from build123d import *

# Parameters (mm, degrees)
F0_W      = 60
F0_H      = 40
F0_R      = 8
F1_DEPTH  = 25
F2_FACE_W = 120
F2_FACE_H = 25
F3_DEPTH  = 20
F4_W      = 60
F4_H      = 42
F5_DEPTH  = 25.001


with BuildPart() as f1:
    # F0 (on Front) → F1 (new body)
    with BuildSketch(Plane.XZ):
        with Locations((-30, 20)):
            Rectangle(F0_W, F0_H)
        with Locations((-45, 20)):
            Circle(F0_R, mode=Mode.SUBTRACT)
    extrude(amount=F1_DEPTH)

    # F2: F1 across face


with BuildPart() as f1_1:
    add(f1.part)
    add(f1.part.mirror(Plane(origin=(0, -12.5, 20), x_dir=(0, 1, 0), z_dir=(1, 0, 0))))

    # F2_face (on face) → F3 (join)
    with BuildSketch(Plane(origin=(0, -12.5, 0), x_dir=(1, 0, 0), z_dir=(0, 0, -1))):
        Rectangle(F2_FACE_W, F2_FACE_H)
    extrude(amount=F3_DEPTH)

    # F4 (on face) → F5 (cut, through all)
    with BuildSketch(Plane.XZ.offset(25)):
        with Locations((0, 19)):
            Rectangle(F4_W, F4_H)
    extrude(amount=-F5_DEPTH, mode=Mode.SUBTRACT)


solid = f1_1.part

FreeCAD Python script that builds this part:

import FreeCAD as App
import Part
import Sketcher
from FreeCAD import Vector


def add_polygon(sketch, points):
    """Adds a closed chain of lines whose ends are joined by coincident constraints."""
    first, n = sketch.GeometryCount, len(points)
    for a, b in zip(points, points[1:] + points[:1]):
        sketch.addGeometry(Part.LineSegment(App.Vector(*a, 0), App.Vector(*b, 0)), False)
    for i in range(n):
        sketch.addConstraint(Sketcher.Constraint("Coincident", first + i, 2, first + (i + 1) % n, 1))

doc = App.newDocument("Part")
body = doc.addObject("PartDesign::Body", "Body")

# Sketch on XZ plane
sketch1 = body.newObject("Sketcher::SketchObject", "Sketch")
sketch1.AttachmentSupport = (doc.getObject("XZ_Plane"), [""])
sketch1.MapMode = "FlatFace"
add_polygon(sketch1, [(-60, 40), (-60, 0), (0, 0), (0, 40)])  # lines 0-3
sketch1.addGeometry(Part.Circle(Vector(-45, 20, 0), Vector(0, 0, 1), 8), False)  # 4
sketch1.addConstraint(Sketcher.Constraint("Vertical", 0))
sketch1.addConstraint(Sketcher.Constraint("Horizontal", 1))
sketch1.addConstraint(Sketcher.Constraint("Vertical", 2))
sketch1.addConstraint(Sketcher.Constraint("Horizontal", 3))
sketch1.addConstraint(Sketcher.Constraint("Coincident", 1, 2, -1, 1))
sketch1.addConstraint(Sketcher.Constraint("Diameter", 4, 16.0))
sketch1.addConstraint(Sketcher.Constraint("DistanceX", 1, 1, 1, 2, 60.0))
sketch1.addConstraint(Sketcher.Constraint("DistanceY", 0, 2, 0, 1, 40.0))
sketch1.addConstraint(Sketcher.Constraint("DistanceX", 4, 3, -1, 1, 45.0))
sketch1.addConstraint(Sketcher.Constraint("DistanceY", -1, 1, 4, 3, 20.0))
pad1 = body.newObject("PartDesign::Pad", "Pad")
pad1.Profile = sketch1
pad1.Length = 25
body2 = doc.addObject("PartDesign::Body", "Body001")
doc.recompute()

body2.BaseFeature = body
doc.recompute()

mirroring = doc.addObject("Part::Mirroring", "Mirroring")
mirroring.Source = body
mirroring.Base = Vector(0, -12.5, 20)
mirroring.Normal = Vector(1, 0, 0)
body3 = doc.addObject("PartDesign::Body", "Body002")
body3.BaseFeature = mirroring
boolean = body2.newObject("PartDesign::Boolean", "Boolean")
boolean.Type = "Fuse"
boolean.addObjects([body3])
doc.recompute()

# Sketch on XY plane
sketch2 = body2.newObject("Sketcher::SketchObject", "Sketch001")
sketch2.AttachmentSupport = (doc.getObject("XY_Plane001"), [""])
sketch2.MapMode = "FlatFace"
add_polygon(sketch2, [(-60, -25), (-60, 0), (60, 0), (60, -25)])  # lines 0-3
sketch2.addConstraint(Sketcher.Constraint("Vertical", 0))
sketch2.addConstraint(Sketcher.Constraint("Horizontal", 1))
sketch2.addConstraint(Sketcher.Constraint("Vertical", 2))
sketch2.addConstraint(Sketcher.Constraint("Horizontal", 3))
sketch2.addConstraint(Sketcher.Constraint("Symmetric", 0, 2, 1, 2, -1, 1))
sketch2.addConstraint(Sketcher.Constraint("DistanceX", 1, 1, 1, 2, 120.0))
sketch2.addConstraint(Sketcher.Constraint("DistanceY", 0, 1, 0, 2, 25.0))
pad2 = body2.newObject("PartDesign::Pad", "Pad001")
pad2.Profile = sketch2
pad2.Length = 20
pad2.Reversed = True

# Sketch on XZ plane
sketch3 = body2.newObject("Sketcher::SketchObject", "Sketch002")
sketch3.AttachmentSupport = (doc.getObject("XZ_Plane001"), [""])
sketch3.MapMode = "FlatFace"
sketch3.AttachmentOffset = App.Placement(Vector(0, 0, 25), App.Rotation())
add_polygon(sketch3, [(-30, 40), (-30, -2), (30, -2), (30, 40)])  # lines 0-3
sketch3.addConstraint(Sketcher.Constraint("Vertical", 0))
sketch3.addConstraint(Sketcher.Constraint("Horizontal", 1))
sketch3.addConstraint(Sketcher.Constraint("Vertical", 2))
sketch3.addConstraint(Sketcher.Constraint("Horizontal", 3))
sketch3.addConstraint(Sketcher.Constraint("DistanceX", 1, 1, 1, 2, 60.0))
sketch3.addConstraint(Sketcher.Constraint("DistanceY", 0, 2, 0, 1, 42.0))
sketch3.addConstraint(Sketcher.Constraint("DistanceX", 0, 2, -1, 1, 30.0))
sketch3.addConstraint(Sketcher.Constraint("DistanceY", 0, 2, -1, 1, 2.0))
pocket1 = body2.newObject("PartDesign::Pocket", "Pocket")
pocket1.Profile = sketch3
pocket1.Type = "ThroughAll"
mirroring.Visibility = False

doc.recompute()
